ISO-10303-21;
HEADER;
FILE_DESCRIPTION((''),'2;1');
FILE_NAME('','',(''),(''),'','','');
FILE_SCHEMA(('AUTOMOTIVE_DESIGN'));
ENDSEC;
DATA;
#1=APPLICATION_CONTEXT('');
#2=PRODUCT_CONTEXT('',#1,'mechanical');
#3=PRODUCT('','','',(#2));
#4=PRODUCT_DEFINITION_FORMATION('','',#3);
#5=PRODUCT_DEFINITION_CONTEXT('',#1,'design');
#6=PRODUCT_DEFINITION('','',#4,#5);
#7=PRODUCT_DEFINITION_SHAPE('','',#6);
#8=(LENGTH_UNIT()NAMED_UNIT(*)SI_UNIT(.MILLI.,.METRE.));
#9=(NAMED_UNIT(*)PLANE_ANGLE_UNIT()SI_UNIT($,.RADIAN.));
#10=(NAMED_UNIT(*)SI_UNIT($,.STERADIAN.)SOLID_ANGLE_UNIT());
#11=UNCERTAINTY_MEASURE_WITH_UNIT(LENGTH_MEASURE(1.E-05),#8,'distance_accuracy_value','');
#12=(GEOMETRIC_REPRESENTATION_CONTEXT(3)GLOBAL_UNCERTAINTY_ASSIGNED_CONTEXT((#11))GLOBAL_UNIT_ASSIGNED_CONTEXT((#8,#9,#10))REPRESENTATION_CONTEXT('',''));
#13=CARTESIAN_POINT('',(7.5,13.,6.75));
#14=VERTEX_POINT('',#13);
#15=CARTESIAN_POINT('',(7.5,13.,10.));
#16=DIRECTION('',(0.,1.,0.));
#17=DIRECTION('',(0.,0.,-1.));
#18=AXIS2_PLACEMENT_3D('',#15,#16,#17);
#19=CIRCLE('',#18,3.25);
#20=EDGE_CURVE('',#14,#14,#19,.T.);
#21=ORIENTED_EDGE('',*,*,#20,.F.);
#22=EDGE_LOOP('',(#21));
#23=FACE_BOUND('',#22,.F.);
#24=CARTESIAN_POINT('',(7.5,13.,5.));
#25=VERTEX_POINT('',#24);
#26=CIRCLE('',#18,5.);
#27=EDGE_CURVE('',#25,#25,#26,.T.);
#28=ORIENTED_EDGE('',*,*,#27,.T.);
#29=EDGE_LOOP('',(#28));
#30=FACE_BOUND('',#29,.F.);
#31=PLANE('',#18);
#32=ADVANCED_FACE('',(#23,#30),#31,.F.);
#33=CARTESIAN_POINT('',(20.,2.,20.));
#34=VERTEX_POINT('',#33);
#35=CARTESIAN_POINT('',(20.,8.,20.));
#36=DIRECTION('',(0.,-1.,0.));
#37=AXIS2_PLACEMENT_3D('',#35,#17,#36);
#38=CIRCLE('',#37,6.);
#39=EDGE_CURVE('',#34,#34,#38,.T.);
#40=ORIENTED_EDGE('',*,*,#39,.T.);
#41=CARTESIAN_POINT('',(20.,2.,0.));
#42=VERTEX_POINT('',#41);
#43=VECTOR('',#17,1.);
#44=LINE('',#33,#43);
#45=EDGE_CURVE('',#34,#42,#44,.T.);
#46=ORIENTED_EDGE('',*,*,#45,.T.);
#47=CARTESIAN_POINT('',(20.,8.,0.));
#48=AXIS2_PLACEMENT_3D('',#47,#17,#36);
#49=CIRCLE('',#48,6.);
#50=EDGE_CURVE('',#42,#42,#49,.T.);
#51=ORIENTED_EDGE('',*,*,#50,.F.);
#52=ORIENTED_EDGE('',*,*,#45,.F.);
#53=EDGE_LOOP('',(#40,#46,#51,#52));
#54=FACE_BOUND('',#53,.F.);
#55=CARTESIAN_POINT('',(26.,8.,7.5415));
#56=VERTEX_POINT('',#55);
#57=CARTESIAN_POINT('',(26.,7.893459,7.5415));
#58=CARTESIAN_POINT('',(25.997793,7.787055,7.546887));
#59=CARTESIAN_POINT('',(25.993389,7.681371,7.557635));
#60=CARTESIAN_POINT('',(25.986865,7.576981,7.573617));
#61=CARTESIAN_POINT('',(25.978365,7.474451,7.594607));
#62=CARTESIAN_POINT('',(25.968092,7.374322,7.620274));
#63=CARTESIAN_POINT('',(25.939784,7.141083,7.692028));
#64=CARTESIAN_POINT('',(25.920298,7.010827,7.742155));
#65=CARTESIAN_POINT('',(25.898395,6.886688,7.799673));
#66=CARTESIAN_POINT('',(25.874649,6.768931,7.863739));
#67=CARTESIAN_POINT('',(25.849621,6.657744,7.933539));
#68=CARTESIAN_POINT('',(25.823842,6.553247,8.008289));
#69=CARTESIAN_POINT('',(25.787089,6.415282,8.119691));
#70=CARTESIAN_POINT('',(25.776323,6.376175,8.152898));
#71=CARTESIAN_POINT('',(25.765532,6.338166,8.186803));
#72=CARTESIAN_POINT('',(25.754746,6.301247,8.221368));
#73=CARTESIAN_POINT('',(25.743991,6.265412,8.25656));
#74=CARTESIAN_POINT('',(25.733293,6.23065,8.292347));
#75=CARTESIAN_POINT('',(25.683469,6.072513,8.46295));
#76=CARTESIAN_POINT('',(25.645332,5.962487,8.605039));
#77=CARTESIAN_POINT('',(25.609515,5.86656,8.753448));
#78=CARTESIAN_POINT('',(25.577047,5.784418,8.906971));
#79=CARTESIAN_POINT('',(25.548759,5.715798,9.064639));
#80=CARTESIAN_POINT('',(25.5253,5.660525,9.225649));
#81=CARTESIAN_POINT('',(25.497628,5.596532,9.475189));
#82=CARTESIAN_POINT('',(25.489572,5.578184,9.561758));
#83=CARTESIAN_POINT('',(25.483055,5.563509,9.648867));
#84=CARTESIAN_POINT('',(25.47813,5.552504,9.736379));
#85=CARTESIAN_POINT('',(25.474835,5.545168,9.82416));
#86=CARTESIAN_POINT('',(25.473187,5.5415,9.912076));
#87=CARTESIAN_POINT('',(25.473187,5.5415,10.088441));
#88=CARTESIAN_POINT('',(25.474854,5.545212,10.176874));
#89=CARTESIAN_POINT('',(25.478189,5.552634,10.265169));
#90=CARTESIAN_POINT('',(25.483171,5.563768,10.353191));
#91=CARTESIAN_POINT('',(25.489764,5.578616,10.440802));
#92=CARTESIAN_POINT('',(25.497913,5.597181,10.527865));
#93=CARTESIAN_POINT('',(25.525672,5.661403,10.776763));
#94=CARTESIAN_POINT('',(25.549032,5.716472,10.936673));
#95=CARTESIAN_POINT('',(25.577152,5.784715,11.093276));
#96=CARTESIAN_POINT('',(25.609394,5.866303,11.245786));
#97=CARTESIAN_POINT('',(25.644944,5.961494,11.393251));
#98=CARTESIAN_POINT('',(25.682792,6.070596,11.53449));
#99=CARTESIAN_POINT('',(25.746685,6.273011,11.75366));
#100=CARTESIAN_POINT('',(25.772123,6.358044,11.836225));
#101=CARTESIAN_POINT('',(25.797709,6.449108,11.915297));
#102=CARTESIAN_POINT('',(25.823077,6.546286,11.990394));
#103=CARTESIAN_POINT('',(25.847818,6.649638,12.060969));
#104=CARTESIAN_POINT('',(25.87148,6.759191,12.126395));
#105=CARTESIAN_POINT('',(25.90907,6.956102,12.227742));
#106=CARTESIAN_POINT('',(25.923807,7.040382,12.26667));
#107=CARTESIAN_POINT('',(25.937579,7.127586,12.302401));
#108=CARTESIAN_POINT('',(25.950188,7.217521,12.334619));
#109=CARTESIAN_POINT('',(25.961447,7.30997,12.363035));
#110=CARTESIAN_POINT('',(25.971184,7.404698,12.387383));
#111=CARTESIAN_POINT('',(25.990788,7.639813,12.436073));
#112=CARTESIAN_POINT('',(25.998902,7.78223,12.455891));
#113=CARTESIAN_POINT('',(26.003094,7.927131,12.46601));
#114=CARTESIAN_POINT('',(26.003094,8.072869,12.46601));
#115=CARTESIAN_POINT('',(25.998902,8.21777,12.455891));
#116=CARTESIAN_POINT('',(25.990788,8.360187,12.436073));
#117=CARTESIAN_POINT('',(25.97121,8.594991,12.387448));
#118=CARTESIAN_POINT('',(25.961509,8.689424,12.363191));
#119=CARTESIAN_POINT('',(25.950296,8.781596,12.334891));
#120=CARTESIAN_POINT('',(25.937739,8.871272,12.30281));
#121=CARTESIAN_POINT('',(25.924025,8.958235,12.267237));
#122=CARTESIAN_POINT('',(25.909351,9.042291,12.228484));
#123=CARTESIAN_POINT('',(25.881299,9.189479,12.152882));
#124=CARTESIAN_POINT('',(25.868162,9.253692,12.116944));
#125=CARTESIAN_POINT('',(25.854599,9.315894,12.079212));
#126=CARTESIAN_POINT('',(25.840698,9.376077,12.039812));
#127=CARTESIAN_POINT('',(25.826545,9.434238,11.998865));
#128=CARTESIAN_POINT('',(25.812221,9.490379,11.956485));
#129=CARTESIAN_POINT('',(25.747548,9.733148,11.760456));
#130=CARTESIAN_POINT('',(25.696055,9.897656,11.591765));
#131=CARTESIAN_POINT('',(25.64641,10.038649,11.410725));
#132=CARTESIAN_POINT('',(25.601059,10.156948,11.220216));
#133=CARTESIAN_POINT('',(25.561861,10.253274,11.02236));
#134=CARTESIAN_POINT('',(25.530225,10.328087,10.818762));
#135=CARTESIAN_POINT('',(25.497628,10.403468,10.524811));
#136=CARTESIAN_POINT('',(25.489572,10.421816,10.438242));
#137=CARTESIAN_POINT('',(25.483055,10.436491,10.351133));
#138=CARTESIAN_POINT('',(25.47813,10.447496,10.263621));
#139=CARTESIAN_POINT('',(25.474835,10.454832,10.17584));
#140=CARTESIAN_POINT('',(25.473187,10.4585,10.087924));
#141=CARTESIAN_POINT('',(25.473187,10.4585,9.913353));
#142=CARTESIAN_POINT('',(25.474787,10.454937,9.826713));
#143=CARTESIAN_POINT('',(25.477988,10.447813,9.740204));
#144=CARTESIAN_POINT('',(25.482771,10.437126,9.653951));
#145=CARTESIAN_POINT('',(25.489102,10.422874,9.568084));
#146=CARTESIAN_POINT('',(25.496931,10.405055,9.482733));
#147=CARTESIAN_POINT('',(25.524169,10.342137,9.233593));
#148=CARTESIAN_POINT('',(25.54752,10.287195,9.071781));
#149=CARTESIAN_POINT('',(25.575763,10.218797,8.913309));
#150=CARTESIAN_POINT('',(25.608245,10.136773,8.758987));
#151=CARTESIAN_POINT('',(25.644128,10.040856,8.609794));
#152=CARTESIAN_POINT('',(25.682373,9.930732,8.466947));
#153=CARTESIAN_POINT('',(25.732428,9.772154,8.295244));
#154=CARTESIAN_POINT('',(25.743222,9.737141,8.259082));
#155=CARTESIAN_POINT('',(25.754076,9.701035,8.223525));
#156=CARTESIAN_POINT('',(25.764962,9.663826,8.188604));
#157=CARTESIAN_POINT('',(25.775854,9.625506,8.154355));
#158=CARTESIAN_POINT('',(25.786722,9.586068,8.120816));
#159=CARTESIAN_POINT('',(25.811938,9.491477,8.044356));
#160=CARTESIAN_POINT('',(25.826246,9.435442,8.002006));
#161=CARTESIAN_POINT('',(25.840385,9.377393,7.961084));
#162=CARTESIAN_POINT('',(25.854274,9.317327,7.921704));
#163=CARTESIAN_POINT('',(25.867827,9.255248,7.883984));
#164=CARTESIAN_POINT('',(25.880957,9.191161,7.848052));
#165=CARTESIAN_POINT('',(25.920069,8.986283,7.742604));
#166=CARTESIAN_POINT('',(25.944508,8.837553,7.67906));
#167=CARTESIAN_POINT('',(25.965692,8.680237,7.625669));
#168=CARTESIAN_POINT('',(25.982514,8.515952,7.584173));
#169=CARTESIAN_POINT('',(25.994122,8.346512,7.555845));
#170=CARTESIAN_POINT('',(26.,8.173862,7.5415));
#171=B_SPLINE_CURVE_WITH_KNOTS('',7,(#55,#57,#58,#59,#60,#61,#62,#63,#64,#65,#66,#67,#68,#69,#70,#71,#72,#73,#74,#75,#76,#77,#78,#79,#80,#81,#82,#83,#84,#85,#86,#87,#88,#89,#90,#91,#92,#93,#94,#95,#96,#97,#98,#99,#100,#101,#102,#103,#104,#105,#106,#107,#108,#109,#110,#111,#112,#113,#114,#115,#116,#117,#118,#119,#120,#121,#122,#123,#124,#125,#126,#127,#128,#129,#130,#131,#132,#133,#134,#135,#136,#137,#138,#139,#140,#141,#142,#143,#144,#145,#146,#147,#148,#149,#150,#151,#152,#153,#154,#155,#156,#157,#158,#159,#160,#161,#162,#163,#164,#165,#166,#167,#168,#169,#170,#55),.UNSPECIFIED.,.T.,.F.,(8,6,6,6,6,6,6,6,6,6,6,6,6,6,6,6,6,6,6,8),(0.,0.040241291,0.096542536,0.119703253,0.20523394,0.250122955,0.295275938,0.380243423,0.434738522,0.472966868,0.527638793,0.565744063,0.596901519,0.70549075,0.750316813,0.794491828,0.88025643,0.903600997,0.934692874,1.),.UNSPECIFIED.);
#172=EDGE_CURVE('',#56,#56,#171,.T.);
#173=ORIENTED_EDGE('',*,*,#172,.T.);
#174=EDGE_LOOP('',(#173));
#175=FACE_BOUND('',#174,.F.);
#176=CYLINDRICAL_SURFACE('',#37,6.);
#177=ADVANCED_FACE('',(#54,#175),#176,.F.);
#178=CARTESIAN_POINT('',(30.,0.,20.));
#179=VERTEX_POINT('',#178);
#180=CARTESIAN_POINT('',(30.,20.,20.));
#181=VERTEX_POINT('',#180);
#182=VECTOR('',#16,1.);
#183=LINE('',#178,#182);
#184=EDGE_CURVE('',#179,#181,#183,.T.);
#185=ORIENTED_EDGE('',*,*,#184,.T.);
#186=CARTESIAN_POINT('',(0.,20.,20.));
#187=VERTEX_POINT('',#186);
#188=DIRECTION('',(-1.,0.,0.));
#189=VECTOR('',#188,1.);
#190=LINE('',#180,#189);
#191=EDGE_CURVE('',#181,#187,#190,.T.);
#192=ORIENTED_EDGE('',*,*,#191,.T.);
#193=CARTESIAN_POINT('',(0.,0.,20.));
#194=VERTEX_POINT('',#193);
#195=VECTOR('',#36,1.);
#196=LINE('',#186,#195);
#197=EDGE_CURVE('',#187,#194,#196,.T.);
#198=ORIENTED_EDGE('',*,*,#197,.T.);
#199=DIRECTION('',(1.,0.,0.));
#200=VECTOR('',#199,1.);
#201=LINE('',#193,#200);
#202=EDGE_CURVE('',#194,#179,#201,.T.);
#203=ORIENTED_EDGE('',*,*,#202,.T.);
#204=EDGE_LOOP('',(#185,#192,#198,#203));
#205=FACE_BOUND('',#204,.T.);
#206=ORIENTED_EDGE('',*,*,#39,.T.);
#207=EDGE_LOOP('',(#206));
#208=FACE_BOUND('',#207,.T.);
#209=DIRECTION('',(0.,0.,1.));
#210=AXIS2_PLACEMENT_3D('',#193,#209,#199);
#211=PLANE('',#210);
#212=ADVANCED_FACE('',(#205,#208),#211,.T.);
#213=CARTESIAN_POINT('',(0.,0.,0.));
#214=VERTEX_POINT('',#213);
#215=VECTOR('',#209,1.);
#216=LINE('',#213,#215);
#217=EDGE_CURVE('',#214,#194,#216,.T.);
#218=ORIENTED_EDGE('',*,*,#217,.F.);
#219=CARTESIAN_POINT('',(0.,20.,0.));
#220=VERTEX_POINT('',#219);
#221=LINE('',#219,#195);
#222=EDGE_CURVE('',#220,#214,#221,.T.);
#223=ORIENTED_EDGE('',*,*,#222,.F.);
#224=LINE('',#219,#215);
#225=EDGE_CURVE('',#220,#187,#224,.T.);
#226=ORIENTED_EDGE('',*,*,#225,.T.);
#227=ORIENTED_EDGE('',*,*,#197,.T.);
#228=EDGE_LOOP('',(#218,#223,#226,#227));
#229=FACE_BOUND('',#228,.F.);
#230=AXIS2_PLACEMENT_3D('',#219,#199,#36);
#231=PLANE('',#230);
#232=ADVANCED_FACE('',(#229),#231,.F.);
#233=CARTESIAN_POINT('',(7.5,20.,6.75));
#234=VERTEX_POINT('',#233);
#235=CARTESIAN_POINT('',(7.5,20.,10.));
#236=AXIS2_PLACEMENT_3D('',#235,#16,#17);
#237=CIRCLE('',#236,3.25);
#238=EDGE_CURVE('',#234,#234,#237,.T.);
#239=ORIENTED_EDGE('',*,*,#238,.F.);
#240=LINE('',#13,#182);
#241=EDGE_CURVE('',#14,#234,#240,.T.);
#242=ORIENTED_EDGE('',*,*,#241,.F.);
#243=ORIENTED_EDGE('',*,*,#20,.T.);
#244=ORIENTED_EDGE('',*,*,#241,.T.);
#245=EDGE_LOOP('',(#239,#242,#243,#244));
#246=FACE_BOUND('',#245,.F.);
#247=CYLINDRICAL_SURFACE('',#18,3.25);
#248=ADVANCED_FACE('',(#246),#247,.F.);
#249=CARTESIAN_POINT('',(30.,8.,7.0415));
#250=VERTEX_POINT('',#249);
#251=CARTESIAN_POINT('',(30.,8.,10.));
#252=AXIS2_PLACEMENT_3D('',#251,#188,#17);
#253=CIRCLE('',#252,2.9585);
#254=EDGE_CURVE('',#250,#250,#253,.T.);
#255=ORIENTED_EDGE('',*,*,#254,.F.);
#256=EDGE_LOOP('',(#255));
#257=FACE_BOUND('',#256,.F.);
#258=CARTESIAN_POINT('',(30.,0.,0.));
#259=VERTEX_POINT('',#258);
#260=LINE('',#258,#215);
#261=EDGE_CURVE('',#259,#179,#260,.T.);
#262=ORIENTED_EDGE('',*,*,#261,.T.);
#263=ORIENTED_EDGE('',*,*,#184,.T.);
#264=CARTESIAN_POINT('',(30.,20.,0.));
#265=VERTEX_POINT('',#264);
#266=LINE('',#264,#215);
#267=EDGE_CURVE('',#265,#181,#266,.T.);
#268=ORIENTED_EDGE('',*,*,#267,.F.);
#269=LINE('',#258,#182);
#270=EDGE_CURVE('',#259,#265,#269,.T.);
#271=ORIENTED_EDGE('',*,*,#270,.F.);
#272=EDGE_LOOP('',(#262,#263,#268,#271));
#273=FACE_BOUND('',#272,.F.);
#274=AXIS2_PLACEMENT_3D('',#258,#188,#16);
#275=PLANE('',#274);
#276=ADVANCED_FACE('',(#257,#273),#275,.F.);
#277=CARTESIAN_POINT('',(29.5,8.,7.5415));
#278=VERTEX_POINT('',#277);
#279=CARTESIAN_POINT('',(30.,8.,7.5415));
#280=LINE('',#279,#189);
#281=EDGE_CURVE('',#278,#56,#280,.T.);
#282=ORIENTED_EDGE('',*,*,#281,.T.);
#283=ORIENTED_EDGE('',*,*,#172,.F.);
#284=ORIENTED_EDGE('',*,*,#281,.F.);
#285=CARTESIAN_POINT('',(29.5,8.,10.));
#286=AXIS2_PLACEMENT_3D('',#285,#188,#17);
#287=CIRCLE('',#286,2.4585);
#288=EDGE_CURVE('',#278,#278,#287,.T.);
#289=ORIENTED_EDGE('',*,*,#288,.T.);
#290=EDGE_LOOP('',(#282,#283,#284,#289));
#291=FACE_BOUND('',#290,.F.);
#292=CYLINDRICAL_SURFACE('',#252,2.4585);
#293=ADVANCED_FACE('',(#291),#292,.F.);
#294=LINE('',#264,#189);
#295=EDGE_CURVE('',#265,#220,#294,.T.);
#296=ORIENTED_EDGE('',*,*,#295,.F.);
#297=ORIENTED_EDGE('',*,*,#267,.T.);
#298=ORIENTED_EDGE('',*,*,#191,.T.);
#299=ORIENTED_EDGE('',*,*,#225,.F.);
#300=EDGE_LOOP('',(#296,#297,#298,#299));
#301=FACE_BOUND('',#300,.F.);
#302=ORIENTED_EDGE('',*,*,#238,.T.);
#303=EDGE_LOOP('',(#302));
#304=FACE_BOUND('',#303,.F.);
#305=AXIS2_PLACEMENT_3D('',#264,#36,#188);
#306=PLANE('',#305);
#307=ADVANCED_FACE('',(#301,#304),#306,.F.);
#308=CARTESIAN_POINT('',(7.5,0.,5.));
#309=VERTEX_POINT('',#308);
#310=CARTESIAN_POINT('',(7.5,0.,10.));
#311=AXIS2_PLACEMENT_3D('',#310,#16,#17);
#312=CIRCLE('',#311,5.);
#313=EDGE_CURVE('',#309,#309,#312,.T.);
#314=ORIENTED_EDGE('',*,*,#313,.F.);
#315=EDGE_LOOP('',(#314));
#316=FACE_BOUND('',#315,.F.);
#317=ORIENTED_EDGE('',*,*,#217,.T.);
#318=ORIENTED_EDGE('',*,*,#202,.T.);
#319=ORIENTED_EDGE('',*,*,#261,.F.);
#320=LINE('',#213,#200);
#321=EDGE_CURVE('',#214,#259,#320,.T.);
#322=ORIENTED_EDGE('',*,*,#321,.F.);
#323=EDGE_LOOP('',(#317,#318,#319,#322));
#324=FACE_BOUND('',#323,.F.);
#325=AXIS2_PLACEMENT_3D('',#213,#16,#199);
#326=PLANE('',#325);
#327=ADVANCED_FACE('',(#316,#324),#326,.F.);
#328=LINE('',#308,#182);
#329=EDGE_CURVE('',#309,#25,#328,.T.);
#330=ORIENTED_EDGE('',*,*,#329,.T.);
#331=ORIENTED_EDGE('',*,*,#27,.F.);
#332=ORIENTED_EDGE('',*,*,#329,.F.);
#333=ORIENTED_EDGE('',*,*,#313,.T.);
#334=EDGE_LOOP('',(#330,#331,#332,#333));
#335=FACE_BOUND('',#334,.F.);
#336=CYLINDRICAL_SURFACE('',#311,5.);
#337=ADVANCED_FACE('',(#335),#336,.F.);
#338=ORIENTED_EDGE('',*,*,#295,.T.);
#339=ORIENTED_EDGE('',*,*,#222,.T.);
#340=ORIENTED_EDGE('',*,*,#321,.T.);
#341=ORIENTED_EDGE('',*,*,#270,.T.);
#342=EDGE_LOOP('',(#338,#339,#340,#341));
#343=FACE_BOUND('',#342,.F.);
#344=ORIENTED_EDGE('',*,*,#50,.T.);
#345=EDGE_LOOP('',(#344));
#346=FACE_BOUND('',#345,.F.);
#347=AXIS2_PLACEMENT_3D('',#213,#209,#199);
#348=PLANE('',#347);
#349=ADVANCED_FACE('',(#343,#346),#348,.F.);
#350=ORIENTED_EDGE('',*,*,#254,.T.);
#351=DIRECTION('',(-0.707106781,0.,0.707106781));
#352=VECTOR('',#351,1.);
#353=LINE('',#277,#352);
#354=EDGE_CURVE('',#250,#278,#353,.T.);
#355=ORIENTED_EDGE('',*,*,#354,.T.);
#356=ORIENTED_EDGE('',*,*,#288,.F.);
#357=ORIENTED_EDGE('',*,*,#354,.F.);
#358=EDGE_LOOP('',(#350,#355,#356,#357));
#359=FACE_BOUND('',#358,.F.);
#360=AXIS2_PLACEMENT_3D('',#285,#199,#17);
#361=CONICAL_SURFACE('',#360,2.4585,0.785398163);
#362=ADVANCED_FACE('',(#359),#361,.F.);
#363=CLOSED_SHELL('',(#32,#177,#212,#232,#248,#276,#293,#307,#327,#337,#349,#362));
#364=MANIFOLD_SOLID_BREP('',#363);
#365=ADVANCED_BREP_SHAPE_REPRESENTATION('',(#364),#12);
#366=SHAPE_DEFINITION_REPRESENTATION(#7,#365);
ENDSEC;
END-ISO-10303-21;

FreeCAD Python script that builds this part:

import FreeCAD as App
import Part
import Sketcher
from FreeCAD import Vector


def edges_at(feature, points):
    """Names of the edges that pass closest to the given points."""
    edges = feature.Shape.Edges
    near = lambda p: min(range(len(edges)), key=lambda i: edges[i].distToShape(Part.Vertex(*p))[0])
    return sorted({f"Edge{near(p) + 1}" for p in points})


def add_polygon(sketch, points):
    """Adds a closed chain of lines whose ends are joined by coincident constraints."""
    first, n = sketch.GeometryCount, len(points)
    for a, b in zip(points, points[1:] + points[:1]):
        sketch.addGeometry(Part.LineSegment(App.Vector(*a, 0), App.Vector(*b, 0)), False)
    for i in range(n):
        sketch.addConstraint(Sketcher.Constraint("Coincident", first + i, 2, first + (i + 1) % n, 1))

doc = App.newDocument("Part")
body = doc.addObject("PartDesign::Body", "Body")

sketch1 = doc.addObject("Sketcher::SketchObject", "Sketch")
body.addObject(sketch1)
sketch1.AttachmentSupport = (doc.XY_Plane, [""])
sketch1.MapMode = "FlatFace"
add_polygon(sketch1, [(0, 20), (0, 0), (30, 0), (30, 20)])
sketch1.addConstraint([
    Sketcher.Constraint("Vertical", 0),
    Sketcher.Constraint("Horizontal", 1),
    Sketcher.Constraint("Vertical", 2),
    Sketcher.Constraint("Horizontal", 3),
    Sketcher.Constraint("Coincident", 0, 2, -1, 1),
    Sketcher.Constraint("DistanceX", 1, 1, 1, 2, 30.0),
    Sketcher.Constraint("DistanceY", 0, 2, 0, 1, 20.0),
])
pad1 = doc.addObject("PartDesign::Pad", "Pad")
body.addObject(pad1)
pad1.Profile = sketch1
pad1.Length = 20

sketch2 = doc.addObject("Sketcher::SketchObject", "Sketch001")
body.addObject(sketch2)
sketch2.AttachmentSupport = (doc.XZ_Plane, [""])
sketch2.MapMode = "FlatFace"
sketch2.addGeometry(Part.Circle(Vector(7.5, 10, 0), Vector(0, 0, 1), 3.2), False)
sketch2.addConstraint([
    Sketcher.Constraint("Diameter", 0, 6.5),
    Sketcher.Constraint("DistanceY", -1, 1, 0, 3, 10.0),
    Sketcher.Constraint("DistanceX", -1, 1, 0, 3, 7.5),
])
doc.recompute()
hole = doc.addObject("PartDesign::Hole", "Hole")
body.addObject(hole)
hole.Profile = sketch2
hole.ThreadType = "None"
hole.Diameter = 6.5
hole.DepthType = "Dimension"
hole.Depth = 20
hole.DrillPoint = "Angled"
hole.DrillPointAngle = 118
hole.HoleCutType = "Counterbore"
hole.HoleCutDiameter = 10
hole.HoleCutDepth = 13

sketch3 = doc.addObject("Sketcher::SketchObject", "Sketch002")
body.addObject(sketch3)
sketch3.AttachmentSupport = (doc.XY_Plane, [""])
sketch3.MapMode = "FlatFace"
sketch3.AttachmentOffset = App.Placement(Vector(0, 0, 20), App.Rotation())
sketch3.addGeometry(Part.Circle(Vector(20, 8, 0), Vector(0, 0, 1), 6), False)
sketch3.addConstraint([
    Sketcher.Constraint("Diameter", 0, 12.0),
    Sketcher.Constraint("DistanceX", -1, 1, 0, 3, 20.0),
    Sketcher.Constraint("DistanceY", -1, 1, 0, 3, 8.0),
])
doc.recompute()
hole2 = doc.addObject("PartDesign::Hole", "Hole001")
body.addObject(hole2)
hole2.Profile = sketch3
hole2.ThreadType = "None"
hole2.Diameter = 12
hole2.DepthType = "Dimension"
hole2.Depth = 20
hole2.DrillPoint = "Angled"
hole2.DrillPointAngle = 118

sketch4 = doc.addObject("Sketcher::SketchObject", "Sketch003")
body.addObject(sketch4)
sketch4.AttachmentSupport = (doc.YZ_Plane, [""])
sketch4.MapMode = "FlatFace"
sketch4.AttachmentOffset = App.Placement(Vector(0, 0, 30), App.Rotation())
sketch4.addGeometry(Part.Circle(Vector(8, 10, 0), Vector(0, 0, 1), 2.5), False)
sketch4.addConstraint([
    Sketcher.Constraint("Diameter", 0, 4.917),
    Sketcher.Constraint("DistanceX", -1, 1, 0, 3, 8.0),
    Sketcher.Constraint("DistanceY", -1, 1, 0, 3, 10.0),
])
doc.recompute()
hole3 = doc.addObject("PartDesign::Hole", "Hole002")
body.addObject(hole3)
hole3.Profile = sketch4
hole3.ThreadType = "None"
hole3.Diameter = 4.917
hole3.DepthType = "Dimension"
hole3.Depth = 6
hole3.DrillPoint = "Angled"
hole3.DrillPointAngle = 118
doc.recompute()

chamfer = doc.addObject("PartDesign::Chamfer", "Chamfer")
body.addObject(chamfer)
chamfer.Base = (hole3, edges_at(hole3, [(30, 8, 12.459)]))
chamfer.Size = 0.5

doc.recompute()
